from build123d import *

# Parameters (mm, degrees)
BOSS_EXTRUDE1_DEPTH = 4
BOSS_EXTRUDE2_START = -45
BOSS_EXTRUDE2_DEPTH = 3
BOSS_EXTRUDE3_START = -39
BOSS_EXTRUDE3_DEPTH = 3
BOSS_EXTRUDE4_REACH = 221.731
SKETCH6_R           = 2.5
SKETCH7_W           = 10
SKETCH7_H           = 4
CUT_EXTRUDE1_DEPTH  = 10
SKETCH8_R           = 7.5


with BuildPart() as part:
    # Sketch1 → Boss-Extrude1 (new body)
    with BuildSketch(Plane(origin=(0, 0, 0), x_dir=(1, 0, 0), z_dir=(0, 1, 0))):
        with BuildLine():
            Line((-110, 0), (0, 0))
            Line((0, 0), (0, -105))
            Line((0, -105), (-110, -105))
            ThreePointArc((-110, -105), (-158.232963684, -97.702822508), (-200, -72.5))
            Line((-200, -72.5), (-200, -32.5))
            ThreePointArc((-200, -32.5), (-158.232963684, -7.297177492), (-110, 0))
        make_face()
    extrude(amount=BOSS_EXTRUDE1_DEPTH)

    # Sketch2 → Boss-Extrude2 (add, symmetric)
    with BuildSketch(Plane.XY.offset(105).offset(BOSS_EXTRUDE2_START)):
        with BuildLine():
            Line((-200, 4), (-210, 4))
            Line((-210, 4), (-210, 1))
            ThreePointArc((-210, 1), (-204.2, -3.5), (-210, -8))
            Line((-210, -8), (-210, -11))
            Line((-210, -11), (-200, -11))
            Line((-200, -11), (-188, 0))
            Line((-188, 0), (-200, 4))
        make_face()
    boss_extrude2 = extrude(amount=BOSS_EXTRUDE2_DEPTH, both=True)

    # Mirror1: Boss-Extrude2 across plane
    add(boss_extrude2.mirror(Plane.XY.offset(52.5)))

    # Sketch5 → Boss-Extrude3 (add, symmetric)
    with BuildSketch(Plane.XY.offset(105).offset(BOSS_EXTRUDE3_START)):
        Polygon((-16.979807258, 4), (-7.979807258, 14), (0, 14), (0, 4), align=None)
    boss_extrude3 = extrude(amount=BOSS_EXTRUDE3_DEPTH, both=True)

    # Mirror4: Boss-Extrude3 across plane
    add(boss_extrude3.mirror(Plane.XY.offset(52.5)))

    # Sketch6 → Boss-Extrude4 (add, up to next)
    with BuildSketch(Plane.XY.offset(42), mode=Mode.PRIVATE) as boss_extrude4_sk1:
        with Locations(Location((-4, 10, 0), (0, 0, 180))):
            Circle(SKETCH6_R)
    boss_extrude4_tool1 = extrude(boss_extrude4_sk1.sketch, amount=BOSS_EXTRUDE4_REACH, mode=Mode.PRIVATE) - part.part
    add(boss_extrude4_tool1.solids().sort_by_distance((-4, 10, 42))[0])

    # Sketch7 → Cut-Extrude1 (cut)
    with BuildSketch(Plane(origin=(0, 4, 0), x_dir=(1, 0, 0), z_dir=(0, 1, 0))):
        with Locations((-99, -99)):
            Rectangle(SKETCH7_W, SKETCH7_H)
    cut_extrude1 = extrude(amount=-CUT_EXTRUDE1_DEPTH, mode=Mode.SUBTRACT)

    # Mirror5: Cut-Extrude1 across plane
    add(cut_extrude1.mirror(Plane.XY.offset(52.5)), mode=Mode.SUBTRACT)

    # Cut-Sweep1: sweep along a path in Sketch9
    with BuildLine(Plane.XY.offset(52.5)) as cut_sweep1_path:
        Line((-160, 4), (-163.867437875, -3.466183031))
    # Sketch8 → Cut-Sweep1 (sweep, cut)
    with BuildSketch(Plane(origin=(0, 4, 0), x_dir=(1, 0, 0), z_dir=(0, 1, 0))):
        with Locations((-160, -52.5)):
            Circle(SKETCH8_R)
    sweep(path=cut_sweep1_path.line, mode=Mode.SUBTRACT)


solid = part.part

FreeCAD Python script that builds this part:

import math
import FreeCAD as App
import Part
import Sketcher
from FreeCAD import Vector


def add_polygon(sketch, points):
    """Adds a closed chain of lines whose ends are joined by coincident constraints."""
    first, n = sketch.GeometryCount, len(points)
    for a, b in zip(points, points[1:] + points[:1]):
        sketch.addGeometry(Part.LineSegment(App.Vector(*a, 0), App.Vector(*b, 0)), False)
    for i in range(n):
        sketch.addConstraint(Sketcher.Constraint("Coincident", first + i, 2, first + (i + 1) % n, 1))

doc = App.newDocument("Part")
params = doc.addObject("Spreadsheet::Sheet", "Params")
for row, (alias, value) in enumerate([
    ("sketch1_radius", "125 mm"),
    ("sketch1_width", "110 mm"),
    ("sketch1_height", "40 mm"),
    ("sketch1_height2", "105 mm"),
    ("pad1_length", "4 mm"),
    ("sketch2_width", "10 mm"),
    ("sketch2_height", "3 mm"),
    ("pad2_length", "6 mm"),
    ("sketch3_height", "10 mm"),
    ("pad3_length", "6 mm"),
    ("sketch4_diameter", "5 mm"),
    ("sketch5_width", "10 mm"),
    ("sketch5_height", "4 mm"),
    ("pocket1_length", "10 mm"),
    ("sketch6_diameter", "15 mm"),
], start=1):
    params.set(f"A{row}", alias)
    params.set(f"B{row}", "=" + value)
    params.setAlias(f"B{row}", alias)

body = doc.addObject("PartDesign::Body", "Body")

sketch1 = body.newObject("Sketcher::SketchObject", "Sketch")
sketch1.AttachmentSupport = (doc.getObject("XZ_Plane"), [""])
sketch1.MapMode = "FlatFace"
sketch1.addGeometry([
    Part.LineSegment(Vector(0, 0, 0), Vector(-110, 0, 0)),
    Part.ArcOfCircle(Part.Circle(Vector(-116, 125, 0), Vector(0, 0, 1), 125), math.radians(-132), math.radians(-87)),
    Part.LineSegment(Vector(-200, 32, 0), Vector(-200, 72, 0)),
    Part.ArcOfCircle(Part.Circle(Vector(-116, -20, 0), Vector(0, 0, 1), 125), math.radians(87), math.radians(132)),
    Part.LineSegment(Vector(-110, 105, 0), Vector(0, 105, 0)),
    Part.LineSegment(Vector(0, 105, 0), Vector(0, 0, 0)),
], False)
sketch1.addConstraint([
    Sketcher.Constraint("Coincident", 0, 2, 1, 2),
    Sketcher.Constraint("Coincident", 1, 1, 2, 1),
    Sketcher.Constraint("Coincident", 2, 2, 3, 2),
    Sketcher.Constraint("Coincident", 3, 1, 4, 1),
    Sketcher.Constraint("Coincident", 4, 2, 5, 1),
    Sketcher.Constraint("Coincident", 5, 2, 0, 1),
    Sketcher.Constraint("Horizontal", 0),
    Sketcher.Constraint("Vertical", 2),
    Sketcher.Constraint("Horizontal", 4),
    Sketcher.Constraint("Vertical", 5),
    Sketcher.Constraint("Coincident", 5, 2, -1, 1),
    Sketcher.Constraint("Equal", 1, 3),
    Sketcher.Constraint("Vertical", 1, 3, 3, 3),
    Sketcher.Constraint("Vertical", 0, 2, 3, 1),
    Sketcher.Constraint("Radius", 1, 125.0),
    Sketcher.Constraint("DistanceX", 0, 2, 0, 1, 110.0),
    Sketcher.Constraint("DistanceY", 2, 1, 2, 2, 40.0),
    Sketcher.Constraint("DistanceY", 5, 2, 5, 1, 105.0),
    Sketcher.Constraint("DistanceX", 1, 1, -1, 1, 200.0),
])
sketch1.setExpression("Constraints[14]", "Params.sketch1_radius")
sketch1.setExpression("Constraints[15]", "Params.sketch1_width")
sketch1.setExpression("Constraints[16]", "Params.sketch1_height")
sketch1.setExpression("Constraints[17]", "Params.sketch1_height2")
pad1 = body.newObject("PartDesign::Pad", "Pad")
pad1.Profile = sketch1
pad1.setExpression("Length", "Params.pad1_length")
pad1.Reversed = True

sketch2 = body.newObject("Sketcher::SketchObject", "Sketch001")
sketch2.AttachmentSupport = (doc.getObject("XY_Plane"), [""])
sketch2.MapMode = "FlatFace"
sketch2.AttachmentOffset = App.Placement(Vector(0, 0, 60), App.Rotation())
sketch2.addGeometry([
    Part.LineSegment(Vector(-200, 4, 0), Vector(-210, 4, 0)),
    Part.LineSegment(Vector(-210, 4, 0), Vector(-210, 1, 0)),
    Part.ArcOfCircle(Part.Circle(Vector(-208.8, -3.5, 0), Vector(0, 0, 1), 4.6), math.radians(-104), math.radians(104)),
    Part.LineSegment(Vector(-210, -8, 0), Vector(-210, -11, 0)),
    Part.LineSegment(Vector(-210, -11, 0), Vector(-200, -11, 0)),
    Part.LineSegment(Vector(-200, -11, 0), Vector(-188, 0, 0)),
    Part.LineSegment(Vector(-188, 0, 0), Vector(-200, 4, 0)),
], False)
sketch2.addConstraint([
    Sketcher.Constraint("Coincident", 0, 2, 1, 1),
    Sketcher.Constraint("Coincident", 1, 2, 2, 2),
    Sketcher.Constraint("Coincident", 2, 1, 3, 1),
    Sketcher.Constraint("Coincident", 3, 2, 4, 1),
    Sketcher.Constraint("Coincident", 4, 2, 5, 1),
    Sketcher.Constraint("Coincident", 5, 2, 6, 1),
    Sketcher.Constraint("Coincident", 6, 2, 0, 1),
    Sketcher.Constraint("Horizontal", 0),
    Sketcher.Constraint("Vertical", 1),
    Sketcher.Constraint("Vertical", 3),
    Sketcher.Constraint("Horizontal", 4),
    Sketcher.Constraint("PointOnObject", 5, 2, -1),
    Sketcher.Constraint("Vertical", 1, 2, 2, 1),
    Sketcher.Constraint("Vertical", 4, 2, 6, 2),
    Sketcher.Constraint("Equal", 1, 3),
    Sketcher.Constraint("DistanceX", 0, 2, 0, 1, 10.0),
    Sketcher.Constraint("DistanceY", 1, 2, 1, 1, 3.0),
    Sketcher.Constraint("DistanceX", 0, 2, -1, 1, 210.0),
    Sketcher.Constraint("DistanceY", -1, 1, 0, 2, 4.0),
    Sketcher.Constraint("DistanceY", 2, 1, -1, 1, 8.0),
    Sketcher.Constraint("DistanceX", 5, 2, -1, 1, 188.0),
    Sketcher.Constraint("Radius", 2, 4.64569),
])
sketch2.setExpression("Constraints[15]", "Params.sketch2_width")
sketch2.setExpression("Constraints[16]", "Params.sketch2_height")
pad2 = body.newObject("PartDesign::Pad", "Pad001")
pad2.Profile = sketch2
pad2.setExpression("Length", "Params.pad2_length")
pad2.Midplane = True
doc.recompute()

datumplane = body.newObject("PartDesign::Plane", "DatumPlane")
datumplane.AttachmentSupport = (doc.getObject("XY_Plane"), [""])
datumplane.MapMode = "FlatFace"
datumplane.AttachmentOffset = App.Placement(Vector(0, 0, 52.5), App.Rotation())
mirrored = body.newObject("PartDesign::Mirrored", "Mirrored")
mirrored.Originals = [pad2]
mirrored.MirrorPlane = (datumplane, [""])
body.Tip = mirrored

sketch3 = body.newObject("Sketcher::SketchObject", "Sketch002")
sketch3.AttachmentSupport = (doc.getObject("XY_Plane"), [""])
sketch3.MapMode = "FlatFace"
sketch3.AttachmentOffset = App.Placement(Vector(0, 0, 66), App.Rotation())
add_polygon(sketch3, [(-8, 14), (-17, 4), (0, 4), (0, 14)])
sketch3.addConstraint([
    Sketcher.Constraint("Horizontal", 1),
    Sketcher.Constraint("Vertical", 2),
    Sketcher.Constraint("Horizontal", 3),
    Sketcher.Constraint("PointOnObject", 1, 2, -2),
    Sketcher.Constraint("DistanceY", 2, 1, 2, 2, 10.0),
    Sketcher.Constraint("DistanceY", -1, 1, 0, 2, 4.0),
    Sketcher.Constraint("DistanceX", 0, 2, 3, 2, 9.0),
    Sketcher.Constraint("DistanceX", 1, 1, 1, 2, 16.979807),
])
sketch3.setExpression("Constraints[8]", "Params.sketch3_height")
pad3 = body.newObject("PartDesign::Pad", "Pad002")
pad3.Profile = sketch3
pad3.setExpression("Length", "Params.pad3_length")
pad3.Midplane = True
doc.recompute()

datumplane2 = body.newObject("PartDesign::Plane", "DatumPlane001")
datumplane2.AttachmentSupport = (doc.getObject("XY_Plane"), [""])
datumplane2.MapMode = "FlatFace"
datumplane2.AttachmentOffset = App.Placement(Vector(0, 0, 52.5), App.Rotation())
mirrored2 = body.newObject("PartDesign::Mirrored", "Mirrored001")
mirrored2.Originals = [pad3]
mirrored2.MirrorPlane = (datumplane2, [""])
body.Tip = mirrored2

sketch4 = body.newObject("Sketcher::SketchObject", "Sketch003")
sketch4.AttachmentSupport = (doc.getObject("XY_Plane"), [""])
sketch4.MapMode = "FlatFace"
sketch4.AttachmentOffset = App.Placement(Vector(0, 0, 42), App.Rotation())
sketch4.addGeometry(Part.Circle(Vector(-4, 10, 0), Vector(0, 0, 1), 2.5), False)
sketch4.addConstraint([
    Sketcher.Constraint("Diameter", 0, 5.0),
    Sketcher.Constraint("DistanceX", 0, 3, -1, 1, 4.0),
    Sketcher.Constraint("DistanceY", -1, 1, 0, 3, 10.0),
])
sketch4.setExpression("Constraints[0]", "Params.sketch4_diameter")
pad4 = body.newObject("PartDesign::Pad", "Pad003")
pad4.Profile = sketch4
pad4.Type = "UpToFirst"

sketch5 = body.newObject("Sketcher::SketchObject", "Sketch004")
sketch5.AttachmentSupport = (doc.getObject("XZ_Plane"), [""])
sketch5.MapMode = "FlatFace"
sketch5.AttachmentOffset = App.Placement(Vector(0, 0, -4), App.Rotation())
add_polygon(sketch5, [(-104, 97), (-104, 101), (-94, 101), (-94, 97)])
sketch5.addConstraint([
    Sketcher.Constraint("Vertical", 0),
    Sketcher.Constraint("Horizontal", 1),
    Sketcher.Constraint("Vertical", 2),
    Sketcher.Constraint("Horizontal", 3),
    Sketcher.Constraint("DistanceX", 1, 1, 1, 2, 10.0),
    Sketcher.Constraint("DistanceY", 0, 1, 0, 2, 4.0),
    Sketcher.Constraint("DistanceX", 0, 2, -1, 1, 104.0),
    Sketcher.Constraint("DistanceY", -1, 1, 0, 2, 101.0),
])
sketch5.setExpression("Constraints[8]", "Params.sketch5_width")
sketch5.setExpression("Constraints[9]", "Params.sketch5_height")
pocket1 = body.newObject("PartDesign::Pocket", "Pocket")
pocket1.Profile = sketch5
pocket1.setExpression("Length", "Params.pocket1_length")
pocket1.Reversed = True
doc.recompute()

datumplane3 = body.newObject("PartDesign::Plane", "DatumPlane002")
datumplane3.AttachmentSupport = (doc.getObject("XY_Plane"), [""])
datumplane3.MapMode = "FlatFace"
datumplane3.AttachmentOffset = App.Placement(Vector(0, 0, 52.5), App.Rotation())
mirrored3 = body.newObject("PartDesign::Mirrored", "Mirrored002")
mirrored3.Originals = [pocket1]
mirrored3.MirrorPlane = (datumplane3, [""])
body.Tip = mirrored3

sketch6 = body.newObject("Sketcher::SketchObject", "Sketch005")
sketch6.AttachmentSupport = (doc.getObject("XZ_Plane"), [""])
sketch6.MapMode = "FlatFace"
sketch6.AttachmentOffset = App.Placement(Vector(0, 0, -4), App.Rotation())
sketch6.addGeometry(Part.Circle(Vector(-160, 52, 0), Vector(0, 0, 1), 8), False)
sketch6.addConstraint([
    Sketcher.Constraint("Diameter", 0, 15.0),
    Sketcher.Constraint("DistanceX", 0, 3, -1, 1, 160.0),
    Sketcher.Constraint("DistanceY", -1, 1, 0, 3, 52.5),
])
sketch6.setExpression("Constraints[0]", "Params.sketch6_diameter")

sketch7 = body.newObject("Sketcher::SketchObject", "Sketch006")
sketch7.Placement = App.Placement(Vector(-127.784992, 66.191857, 0), App.Rotation(Vector(-0.459950056, -0.887944788, 0), Vector(0, 0, 1.000000001), Vector(-0.887944788, 0.459950056, 0), "ZXY"))
sketch7.addGeometry(Part.LineSegment(Vector(70, 53, 0), Vector(78, 53, 0)), False)
sketch7.addConstraint([
    Sketcher.Constraint("Horizontal", 0),
    Sketcher.Constraint("DistanceY", -1, 1, 0, 1, 52.5),
    Sketcher.Constraint("DistanceX", 0, 1, 0, 2, 8.408387),
    Sketcher.Constraint("DistanceX", -1, 1, 0, 1, 70.04023),
])
doc.recompute()

subtractivepipe = body.newObject("PartDesign::SubtractivePipe", "SubtractivePipe")
subtractivepipe.Profile = sketch6
subtractivepipe.Spine = (sketch7, ["Edge1"])

doc.recompute()
